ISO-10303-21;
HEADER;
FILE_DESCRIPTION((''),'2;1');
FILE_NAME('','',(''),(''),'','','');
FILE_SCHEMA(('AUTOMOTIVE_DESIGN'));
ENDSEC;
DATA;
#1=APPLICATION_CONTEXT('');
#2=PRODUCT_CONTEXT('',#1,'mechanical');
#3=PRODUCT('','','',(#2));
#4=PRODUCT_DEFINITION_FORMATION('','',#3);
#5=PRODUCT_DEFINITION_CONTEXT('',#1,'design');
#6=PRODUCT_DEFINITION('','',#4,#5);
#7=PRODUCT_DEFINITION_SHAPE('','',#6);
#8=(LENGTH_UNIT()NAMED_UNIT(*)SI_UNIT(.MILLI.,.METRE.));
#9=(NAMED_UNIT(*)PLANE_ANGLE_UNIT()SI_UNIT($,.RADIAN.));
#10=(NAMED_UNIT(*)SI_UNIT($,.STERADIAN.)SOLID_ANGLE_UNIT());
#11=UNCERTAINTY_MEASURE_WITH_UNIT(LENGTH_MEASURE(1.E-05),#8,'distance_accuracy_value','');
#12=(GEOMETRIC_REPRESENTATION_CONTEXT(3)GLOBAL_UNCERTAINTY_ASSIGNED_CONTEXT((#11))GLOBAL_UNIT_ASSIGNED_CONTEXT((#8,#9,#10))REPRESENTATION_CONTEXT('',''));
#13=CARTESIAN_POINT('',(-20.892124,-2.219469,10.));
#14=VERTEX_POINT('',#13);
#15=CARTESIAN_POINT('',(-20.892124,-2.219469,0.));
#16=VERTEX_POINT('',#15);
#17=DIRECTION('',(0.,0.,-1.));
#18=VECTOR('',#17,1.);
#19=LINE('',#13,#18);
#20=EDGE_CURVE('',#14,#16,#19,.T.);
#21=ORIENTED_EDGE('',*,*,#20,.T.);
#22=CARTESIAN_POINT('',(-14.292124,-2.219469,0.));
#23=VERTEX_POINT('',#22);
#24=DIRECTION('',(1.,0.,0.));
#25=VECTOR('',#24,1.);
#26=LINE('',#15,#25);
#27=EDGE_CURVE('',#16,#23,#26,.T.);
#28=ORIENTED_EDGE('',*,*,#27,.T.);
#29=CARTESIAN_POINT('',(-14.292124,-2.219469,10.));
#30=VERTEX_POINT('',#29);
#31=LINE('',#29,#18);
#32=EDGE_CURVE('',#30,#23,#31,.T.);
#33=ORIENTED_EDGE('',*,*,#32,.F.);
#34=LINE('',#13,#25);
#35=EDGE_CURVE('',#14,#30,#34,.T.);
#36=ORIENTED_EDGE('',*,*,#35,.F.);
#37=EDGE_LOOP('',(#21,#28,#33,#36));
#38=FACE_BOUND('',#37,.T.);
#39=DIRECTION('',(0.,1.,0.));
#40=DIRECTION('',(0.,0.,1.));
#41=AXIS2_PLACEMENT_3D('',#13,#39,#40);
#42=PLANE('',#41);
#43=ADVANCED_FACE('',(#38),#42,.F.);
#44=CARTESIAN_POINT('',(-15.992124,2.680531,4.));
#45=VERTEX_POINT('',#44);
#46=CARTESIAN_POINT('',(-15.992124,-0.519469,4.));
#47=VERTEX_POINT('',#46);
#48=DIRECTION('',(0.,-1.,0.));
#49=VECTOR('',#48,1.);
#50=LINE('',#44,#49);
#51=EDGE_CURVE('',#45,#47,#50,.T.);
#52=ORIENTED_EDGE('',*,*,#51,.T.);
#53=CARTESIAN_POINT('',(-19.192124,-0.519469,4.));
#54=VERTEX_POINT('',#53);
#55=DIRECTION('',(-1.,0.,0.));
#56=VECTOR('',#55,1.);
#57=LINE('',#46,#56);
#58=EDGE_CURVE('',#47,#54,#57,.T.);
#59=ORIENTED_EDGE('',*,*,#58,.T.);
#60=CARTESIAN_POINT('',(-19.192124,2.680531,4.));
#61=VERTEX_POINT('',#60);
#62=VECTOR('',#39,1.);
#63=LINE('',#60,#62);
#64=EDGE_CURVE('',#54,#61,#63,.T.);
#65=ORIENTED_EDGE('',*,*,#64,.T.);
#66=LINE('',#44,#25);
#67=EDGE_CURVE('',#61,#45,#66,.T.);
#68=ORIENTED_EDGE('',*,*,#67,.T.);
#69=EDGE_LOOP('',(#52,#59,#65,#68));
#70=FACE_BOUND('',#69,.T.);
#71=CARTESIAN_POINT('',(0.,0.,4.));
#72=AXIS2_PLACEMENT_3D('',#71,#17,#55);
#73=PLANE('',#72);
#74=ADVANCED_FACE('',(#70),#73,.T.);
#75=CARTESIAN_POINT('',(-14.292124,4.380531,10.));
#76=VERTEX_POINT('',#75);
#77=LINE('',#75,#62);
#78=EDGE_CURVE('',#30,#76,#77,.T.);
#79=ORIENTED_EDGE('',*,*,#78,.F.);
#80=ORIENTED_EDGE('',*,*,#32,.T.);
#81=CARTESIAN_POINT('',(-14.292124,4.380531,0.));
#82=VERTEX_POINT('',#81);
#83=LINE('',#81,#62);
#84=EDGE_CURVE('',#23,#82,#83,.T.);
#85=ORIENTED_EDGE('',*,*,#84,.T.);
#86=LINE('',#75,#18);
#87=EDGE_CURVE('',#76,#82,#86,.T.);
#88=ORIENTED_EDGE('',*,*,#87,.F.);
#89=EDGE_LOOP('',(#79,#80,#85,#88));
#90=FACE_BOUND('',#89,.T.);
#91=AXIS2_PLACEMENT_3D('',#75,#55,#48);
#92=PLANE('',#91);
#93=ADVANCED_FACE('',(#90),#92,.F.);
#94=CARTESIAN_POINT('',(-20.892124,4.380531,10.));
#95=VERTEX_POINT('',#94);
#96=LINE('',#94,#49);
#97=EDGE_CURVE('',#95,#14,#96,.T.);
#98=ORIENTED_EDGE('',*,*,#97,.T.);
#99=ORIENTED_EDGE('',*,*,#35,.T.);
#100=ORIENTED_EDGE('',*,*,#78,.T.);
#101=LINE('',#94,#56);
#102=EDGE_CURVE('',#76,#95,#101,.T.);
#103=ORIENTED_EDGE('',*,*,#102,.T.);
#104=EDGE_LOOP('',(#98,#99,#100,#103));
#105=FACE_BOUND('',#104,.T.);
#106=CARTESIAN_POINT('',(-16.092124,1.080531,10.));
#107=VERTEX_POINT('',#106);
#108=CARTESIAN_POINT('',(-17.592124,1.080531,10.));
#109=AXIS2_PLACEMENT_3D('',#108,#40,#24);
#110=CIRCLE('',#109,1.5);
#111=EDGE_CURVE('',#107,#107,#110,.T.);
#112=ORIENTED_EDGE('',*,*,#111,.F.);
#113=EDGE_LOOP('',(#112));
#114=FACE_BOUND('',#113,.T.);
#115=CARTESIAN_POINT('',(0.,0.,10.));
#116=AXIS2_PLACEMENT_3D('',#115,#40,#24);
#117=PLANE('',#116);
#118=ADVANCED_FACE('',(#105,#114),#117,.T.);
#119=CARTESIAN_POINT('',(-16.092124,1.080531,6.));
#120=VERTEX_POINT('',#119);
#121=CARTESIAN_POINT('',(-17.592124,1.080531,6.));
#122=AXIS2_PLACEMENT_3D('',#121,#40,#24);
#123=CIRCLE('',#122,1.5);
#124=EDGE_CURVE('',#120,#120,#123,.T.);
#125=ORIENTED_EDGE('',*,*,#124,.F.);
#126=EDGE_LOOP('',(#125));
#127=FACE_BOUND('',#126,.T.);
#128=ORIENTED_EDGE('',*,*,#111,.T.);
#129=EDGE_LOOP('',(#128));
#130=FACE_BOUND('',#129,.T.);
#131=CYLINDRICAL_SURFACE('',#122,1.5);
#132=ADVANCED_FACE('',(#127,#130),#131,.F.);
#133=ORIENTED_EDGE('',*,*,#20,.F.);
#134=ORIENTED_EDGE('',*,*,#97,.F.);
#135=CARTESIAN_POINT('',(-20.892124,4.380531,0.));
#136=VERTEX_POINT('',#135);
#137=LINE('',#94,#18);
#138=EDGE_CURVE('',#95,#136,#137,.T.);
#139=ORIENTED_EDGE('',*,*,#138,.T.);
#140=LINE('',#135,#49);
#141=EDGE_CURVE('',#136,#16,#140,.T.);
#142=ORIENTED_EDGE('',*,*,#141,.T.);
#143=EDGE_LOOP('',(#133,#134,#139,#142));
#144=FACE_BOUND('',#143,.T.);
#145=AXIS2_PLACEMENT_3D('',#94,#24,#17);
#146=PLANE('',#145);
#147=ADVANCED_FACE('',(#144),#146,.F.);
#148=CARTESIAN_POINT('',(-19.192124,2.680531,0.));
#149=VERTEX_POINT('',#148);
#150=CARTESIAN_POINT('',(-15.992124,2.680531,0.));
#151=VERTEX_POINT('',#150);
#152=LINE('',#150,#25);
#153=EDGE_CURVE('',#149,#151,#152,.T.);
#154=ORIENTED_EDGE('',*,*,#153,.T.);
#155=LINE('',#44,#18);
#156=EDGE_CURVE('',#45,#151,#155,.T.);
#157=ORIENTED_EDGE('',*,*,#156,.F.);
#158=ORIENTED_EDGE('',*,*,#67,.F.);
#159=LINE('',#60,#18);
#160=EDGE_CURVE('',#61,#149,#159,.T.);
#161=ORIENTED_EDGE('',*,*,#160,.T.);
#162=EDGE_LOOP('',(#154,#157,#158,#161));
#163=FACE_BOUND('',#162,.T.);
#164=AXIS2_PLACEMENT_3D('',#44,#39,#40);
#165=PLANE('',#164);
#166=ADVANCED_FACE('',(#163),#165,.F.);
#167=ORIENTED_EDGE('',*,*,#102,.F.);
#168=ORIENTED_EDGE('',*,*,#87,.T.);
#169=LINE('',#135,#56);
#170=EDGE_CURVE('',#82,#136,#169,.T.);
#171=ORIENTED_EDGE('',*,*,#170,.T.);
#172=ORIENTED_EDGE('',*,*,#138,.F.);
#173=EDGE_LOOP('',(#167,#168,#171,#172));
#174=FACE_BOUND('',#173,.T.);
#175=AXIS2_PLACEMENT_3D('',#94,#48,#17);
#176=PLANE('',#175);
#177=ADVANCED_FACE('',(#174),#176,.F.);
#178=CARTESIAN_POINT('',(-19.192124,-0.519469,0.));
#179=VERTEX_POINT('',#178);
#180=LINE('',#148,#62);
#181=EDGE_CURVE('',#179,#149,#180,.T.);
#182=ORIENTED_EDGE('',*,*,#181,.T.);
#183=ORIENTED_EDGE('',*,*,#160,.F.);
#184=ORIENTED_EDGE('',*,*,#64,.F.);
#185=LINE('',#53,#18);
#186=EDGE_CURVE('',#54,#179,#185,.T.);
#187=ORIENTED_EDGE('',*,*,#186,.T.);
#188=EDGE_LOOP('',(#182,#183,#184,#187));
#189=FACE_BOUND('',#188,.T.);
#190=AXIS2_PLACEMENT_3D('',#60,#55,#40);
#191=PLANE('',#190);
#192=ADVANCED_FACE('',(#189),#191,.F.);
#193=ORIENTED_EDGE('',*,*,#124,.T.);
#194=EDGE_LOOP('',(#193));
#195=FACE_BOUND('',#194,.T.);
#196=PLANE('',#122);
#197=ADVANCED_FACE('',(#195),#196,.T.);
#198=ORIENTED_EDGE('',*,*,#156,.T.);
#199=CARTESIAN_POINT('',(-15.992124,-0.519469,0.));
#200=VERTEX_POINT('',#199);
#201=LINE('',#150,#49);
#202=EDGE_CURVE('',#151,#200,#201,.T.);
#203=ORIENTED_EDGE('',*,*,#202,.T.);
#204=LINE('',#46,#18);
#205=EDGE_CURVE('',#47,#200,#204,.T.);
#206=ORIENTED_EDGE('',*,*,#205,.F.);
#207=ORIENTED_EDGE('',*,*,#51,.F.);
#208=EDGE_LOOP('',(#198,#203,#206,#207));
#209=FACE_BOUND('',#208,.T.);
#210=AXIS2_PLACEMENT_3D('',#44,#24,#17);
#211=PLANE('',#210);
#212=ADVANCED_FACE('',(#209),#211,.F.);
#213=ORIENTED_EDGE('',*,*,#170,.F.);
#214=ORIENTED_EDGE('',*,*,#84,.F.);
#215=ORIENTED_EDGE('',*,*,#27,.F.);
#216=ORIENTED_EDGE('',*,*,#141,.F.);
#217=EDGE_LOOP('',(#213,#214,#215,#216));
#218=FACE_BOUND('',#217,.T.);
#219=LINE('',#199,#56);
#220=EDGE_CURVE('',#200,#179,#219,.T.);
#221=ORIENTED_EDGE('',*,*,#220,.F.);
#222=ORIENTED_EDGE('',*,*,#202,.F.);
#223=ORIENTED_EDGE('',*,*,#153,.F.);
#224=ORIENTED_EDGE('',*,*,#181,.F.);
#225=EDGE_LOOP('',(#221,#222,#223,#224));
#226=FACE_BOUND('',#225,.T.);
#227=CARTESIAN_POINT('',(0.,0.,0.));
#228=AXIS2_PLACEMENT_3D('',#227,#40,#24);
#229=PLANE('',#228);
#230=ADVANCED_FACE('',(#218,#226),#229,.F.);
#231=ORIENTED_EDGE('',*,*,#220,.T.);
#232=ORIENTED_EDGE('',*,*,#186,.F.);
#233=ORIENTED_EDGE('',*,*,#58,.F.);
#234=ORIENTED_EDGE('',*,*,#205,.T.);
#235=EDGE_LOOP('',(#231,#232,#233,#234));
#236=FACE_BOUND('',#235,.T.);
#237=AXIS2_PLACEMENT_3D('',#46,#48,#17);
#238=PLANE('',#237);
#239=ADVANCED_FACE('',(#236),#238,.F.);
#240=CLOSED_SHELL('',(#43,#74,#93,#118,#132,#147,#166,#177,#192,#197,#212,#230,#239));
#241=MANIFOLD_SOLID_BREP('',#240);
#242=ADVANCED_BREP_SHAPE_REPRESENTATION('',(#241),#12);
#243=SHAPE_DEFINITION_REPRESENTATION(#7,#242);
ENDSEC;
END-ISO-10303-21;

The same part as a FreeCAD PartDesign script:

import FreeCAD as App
import Part
import Sketcher

V = App.Vector


def add_polygon(sketch, points):
    """Adds a closed chain of lines whose ends are joined by coincident constraints."""
    first, n = sketch.GeometryCount, len(points)
    for a, b in zip(points, points[1:] + points[:1]):
        sketch.addGeometry(Part.LineSegment(App.Vector(*a, 0), App.Vector(*b, 0)), False)
    for i in range(n):
        sketch.addConstraint(Sketcher.Constraint("Coincident", first + i, 2, first + (i + 1) % n, 1))

doc = App.newDocument("Part")
body = doc.addObject("PartDesign::Body", "Body")

# Sketch on XY plane
sketch1 = body.newObject("Sketcher::SketchObject", "Sketch")
sketch1.AttachmentSupport = (doc.getObject("XY_Plane"), [""])
sketch1.MapMode = "FlatFace"
add_polygon(sketch1, [(-21, 4), (-21, -2), (-14, -2), (-14, 4)])  # lines 0-3
sketch1.addConstraint([
    Sketcher.Constraint("Vertical", 0),
    Sketcher.Constraint("Horizontal", 1),
    Sketcher.Constraint("Vertical", 2),
    Sketcher.Constraint("Horizontal", 3),
    Sketcher.Constraint("Equal", 3, 0),
    Sketcher.Constraint("DistanceX", 1, 1, 1, 2, 6.6),
    Sketcher.Constraint("DistanceY", 0, 2, -1, 1, 2.219469),
    Sketcher.Constraint("DistanceX", 0, 2, -1, 1, 20.892124),
])
pad1 = body.newObject("PartDesign::Pad", "Pad")
pad1.Profile = sketch1
pad1.Length = 10

# Sketch on XY plane
sketch2 = body.newObject("Sketcher::SketchObject", "Sketch001")
sketch2.AttachmentSupport = (doc.getObject("XY_Plane"), [""])
sketch2.MapMode = "FlatFace"
sketch2.AttachmentOffset = App.Placement(V(0, 0, 10), App.Rotation())
sketch2.addGeometry(Part.Circle(V(-17.6, 1.1, 0), V(0, 0, 1), 1.5), False)
sketch2.addConstraint([
    Sketcher.Constraint("Diameter", 0, 3.0),
    Sketcher.Constraint("DistanceY", -1, 1, 0, 3, 1.080531),
    Sketcher.Constraint("DistanceX", 0, 3, -1, 1, 17.592124),
])
pocket1 = body.newObject("PartDesign::Pocket", "Pocket")
pocket1.Profile = sketch2
pocket1.Length = 4

# Sketch on XY plane
sketch3 = body.newObject("Sketcher::SketchObject", "Sketch002")
sketch3.AttachmentSupport = (doc.getObject("XY_Plane"), [""])
sketch3.MapMode = "FlatFace"
add_polygon(sketch3, [(-16, 2.7), (-16, -0.5), (-19.2, -0.5), (-19.2, 2.7)])  # lines 0-3
sketch3.addConstraint([
    Sketcher.Constraint("Vertical", 0),
    Sketcher.Constraint("Horizontal", 1),
    Sketcher.Constraint("Vertical", 2),
    Sketcher.Constraint("Horizontal", 3),
    Sketcher.Constraint("Equal", 3, 0),
    Sketcher.Constraint("DistanceX", 1, 2, 1, 1, 3.2),
    Sketcher.Constraint("DistanceY", 0, 2, -1, 1, 0.519469),
    Sketcher.Constraint("DistanceX", 0, 2, -1, 1, 15.992124),
])
pocket2 = body.newObject("PartDesign::Pocket", "Pocket001")
pocket2.Profile = sketch3
pocket2.Length = 4
pocket2.Reversed = True

doc.recompute()
